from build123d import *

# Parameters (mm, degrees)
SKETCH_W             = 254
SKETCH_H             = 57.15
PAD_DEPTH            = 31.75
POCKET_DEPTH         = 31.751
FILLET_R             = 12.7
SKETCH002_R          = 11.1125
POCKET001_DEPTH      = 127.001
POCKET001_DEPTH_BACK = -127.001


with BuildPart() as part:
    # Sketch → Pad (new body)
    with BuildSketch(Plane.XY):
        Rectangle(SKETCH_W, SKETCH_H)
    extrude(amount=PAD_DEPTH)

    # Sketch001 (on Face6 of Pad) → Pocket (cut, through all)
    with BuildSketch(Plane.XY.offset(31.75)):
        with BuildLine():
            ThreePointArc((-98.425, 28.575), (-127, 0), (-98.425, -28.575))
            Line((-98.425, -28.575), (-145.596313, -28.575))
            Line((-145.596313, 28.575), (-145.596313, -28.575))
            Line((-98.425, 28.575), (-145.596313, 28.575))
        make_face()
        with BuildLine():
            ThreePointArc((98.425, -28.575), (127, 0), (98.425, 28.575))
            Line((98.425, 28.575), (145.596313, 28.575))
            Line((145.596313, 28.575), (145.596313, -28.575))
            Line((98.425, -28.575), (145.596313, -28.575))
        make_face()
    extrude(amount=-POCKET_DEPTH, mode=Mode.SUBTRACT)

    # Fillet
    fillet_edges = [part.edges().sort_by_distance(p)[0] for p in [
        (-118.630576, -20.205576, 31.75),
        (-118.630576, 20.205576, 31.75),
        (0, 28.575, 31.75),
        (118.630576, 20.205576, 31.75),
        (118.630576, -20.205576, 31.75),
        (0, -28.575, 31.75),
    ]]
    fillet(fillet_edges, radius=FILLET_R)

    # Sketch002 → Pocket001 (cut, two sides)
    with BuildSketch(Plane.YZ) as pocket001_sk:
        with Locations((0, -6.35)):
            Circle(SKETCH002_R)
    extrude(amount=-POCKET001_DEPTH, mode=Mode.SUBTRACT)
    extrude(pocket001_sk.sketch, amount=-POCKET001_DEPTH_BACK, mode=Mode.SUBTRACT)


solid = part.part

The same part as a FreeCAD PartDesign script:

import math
import FreeCAD as App
import Part
import Sketcher
from FreeCAD import Vector
Q = App.Units.Quantity


def edges_at(feature, points):
    """Names of the edges that pass closest to the given points."""
    edges = feature.Shape.Edges
    near = lambda p: min(range(len(edges)), key=lambda i: edges[i].distToShape(Part.Vertex(*p))[0])
    return sorted({f"Edge{near(p) + 1}" for p in points})


def add_polygon(sketch, points):
    """Adds a closed chain of lines whose ends are joined by coincident constraints."""
    first, n = sketch.GeometryCount, len(points)
    for a, b in zip(points, points[1:] + points[:1]):
        sketch.addGeometry(Part.LineSegment(App.Vector(*a, 0), App.Vector(*b, 0)), False)
    for i in range(n):
        sketch.addConstraint(Sketcher.Constraint("Coincident", first + i, 2, first + (i + 1) % n, 1))

doc = App.newDocument("Part")
body = doc.addObject("PartDesign::Body", "Body")

# Sketch on XY plane
sketch1 = body.newObject("Sketcher::SketchObject", "Sketch")
sketch1.AttachmentSupport = (doc.getObject("XY_Plane"), [""])
sketch1.MapMode = "FlatFace"
add_polygon(sketch1, [(-127, 29), (-127, -29), (127, -29), (127, 29)])  # lines 0-3
sketch1.addConstraint([
    Sketcher.Constraint("Vertical", 0),
    Sketcher.Constraint("Horizontal", 1),
    Sketcher.Constraint("Vertical", 2),
    Sketcher.Constraint("Horizontal", 3),
    Sketcher.Constraint("Symmetric", 0, 2, 2, 2, -1, 1),
    Sketcher.Constraint("DistanceX", 1, 1, 1, 2, Q("10 in")),
    Sketcher.Constraint("DistanceY", 0, 2, 0, 1, Q("2.25 in")),
])
pad1 = body.newObject("PartDesign::Pad", "Pad")
pad1.Profile = sketch1
pad1.Length = Q("1.25 in")

# Sketch on XY plane
sketch2 = body.newObject("Sketcher::SketchObject", "Sketch001")
sketch2.AttachmentSupport = (doc.getObject("XY_Plane"), [""])
sketch2.MapMode = "FlatFace"
sketch2.AttachmentOffset = App.Placement(Vector(0, 0, 1.25 * 25.4), App.Rotation())
sketch2.addGeometry([
    Part.ArcOfCircle(Part.Circle(Vector(-98, 0, 0), Vector(0, 0, 1), 29), math.radians(90), math.radians(270)),  # 0
    Part.LineSegment(Vector(-98, 29, 0), Vector(-146, 29, 0)),  # 1
    Part.LineSegment(Vector(-146, 29, 0), Vector(-146, -29, 0)),  # 2
    Part.LineSegment(Vector(-146, -29, 0), Vector(-98, -29, 0)),  # 3
    Part.ArcOfCircle(Part.Circle(Vector(98, 0, 0), Vector(0, 0, 1), 29), math.radians(-90), math.radians(90)),  # 4
    Part.LineSegment(Vector(98, -29, 0), Vector(146, -29, 0)),  # 5
    Part.LineSegment(Vector(146, -29, 0), Vector(146, 29, 0)),  # 6
    Part.LineSegment(Vector(146, 29, 0), Vector(98, 29, 0)),  # 7
], False)
sketch2.addConstraint([
    Sketcher.Constraint("Tangent", 0, 1, 1, 1),
    Sketcher.Constraint("Coincident", 1, 2, 2, 1),
    Sketcher.Constraint("Coincident", 2, 2, 3, 1),
    Sketcher.Constraint("Tangent", 3, 2, 0, 2),
    Sketcher.Constraint("Tangent", 4, 1, 5, 1),
    Sketcher.Constraint("Coincident", 5, 2, 6, 1),
    Sketcher.Constraint("Coincident", 6, 2, 7, 1),
    Sketcher.Constraint("Tangent", 7, 2, 4, 2),
    Sketcher.Constraint("Horizontal", 1),
    Sketcher.Constraint("Vertical", 2),
    Sketcher.Constraint("Horizontal", 3),
    Sketcher.Constraint("Horizontal", 5),
    Sketcher.Constraint("Vertical", 6),
    Sketcher.Constraint("Horizontal", 7),
    Sketcher.Constraint("Equal", 0, 4),
    Sketcher.Constraint("Symmetric", 0, 3, 4, 3, -1, 1),
    Sketcher.Constraint("Symmetric", 2, 2, 5, 2, -2),
    Sketcher.Constraint("Radius", 0, Q("1.125 in")),
    Sketcher.Constraint("DistanceX", 0, 3, 4, 3, Q("7.75 in")),
    Sketcher.Constraint("DistanceX", 1, 2, 1, 1, Q("47.171313 mm")),
])
pocket1 = body.newObject("PartDesign::Pocket", "Pocket")
pocket1.Profile = sketch2
pocket1.Type = "ThroughAll"
doc.recompute()

fillet = body.newObject("PartDesign::Fillet", "Fillet")
fillet.Base = (pocket1, edges_at(pocket1, [
    (-127, 0, 31.75),
    (-127, 0, 31.75),
    (0, 28.575, 31.75),
    (127, 0, 31.75),
    (127, 0, 31.75),
    (0, -28.575, 31.75),
]))
fillet.Radius = Q("0.5 in")

# Sketch on YZ plane
sketch3 = body.newObject("Sketcher::SketchObject", "Sketch002")
sketch3.AttachmentSupport = (doc.getObject("YZ_Plane"), [""])
sketch3.MapMode = "FlatFace"
sketch3.addGeometry(Part.Circle(Vector(0, -6, 0), Vector(0, 0, 1), 11), False)
sketch3.addConstraint([
    Sketcher.Constraint("PointOnObject", 0, 3, -2),
    Sketcher.Constraint("Diameter", 0, Q("0.875 in")),
    Sketcher.Constraint("DistanceY", 0, 3, -1, 1, Q("0.25 in")),
])
pocket2 = body.newObject("PartDesign::Pocket", "Pocket001")
pocket2.Profile = sketch3
pocket2.Type = "ThroughAll"
pocket2.Midplane = True

doc.recompute()
